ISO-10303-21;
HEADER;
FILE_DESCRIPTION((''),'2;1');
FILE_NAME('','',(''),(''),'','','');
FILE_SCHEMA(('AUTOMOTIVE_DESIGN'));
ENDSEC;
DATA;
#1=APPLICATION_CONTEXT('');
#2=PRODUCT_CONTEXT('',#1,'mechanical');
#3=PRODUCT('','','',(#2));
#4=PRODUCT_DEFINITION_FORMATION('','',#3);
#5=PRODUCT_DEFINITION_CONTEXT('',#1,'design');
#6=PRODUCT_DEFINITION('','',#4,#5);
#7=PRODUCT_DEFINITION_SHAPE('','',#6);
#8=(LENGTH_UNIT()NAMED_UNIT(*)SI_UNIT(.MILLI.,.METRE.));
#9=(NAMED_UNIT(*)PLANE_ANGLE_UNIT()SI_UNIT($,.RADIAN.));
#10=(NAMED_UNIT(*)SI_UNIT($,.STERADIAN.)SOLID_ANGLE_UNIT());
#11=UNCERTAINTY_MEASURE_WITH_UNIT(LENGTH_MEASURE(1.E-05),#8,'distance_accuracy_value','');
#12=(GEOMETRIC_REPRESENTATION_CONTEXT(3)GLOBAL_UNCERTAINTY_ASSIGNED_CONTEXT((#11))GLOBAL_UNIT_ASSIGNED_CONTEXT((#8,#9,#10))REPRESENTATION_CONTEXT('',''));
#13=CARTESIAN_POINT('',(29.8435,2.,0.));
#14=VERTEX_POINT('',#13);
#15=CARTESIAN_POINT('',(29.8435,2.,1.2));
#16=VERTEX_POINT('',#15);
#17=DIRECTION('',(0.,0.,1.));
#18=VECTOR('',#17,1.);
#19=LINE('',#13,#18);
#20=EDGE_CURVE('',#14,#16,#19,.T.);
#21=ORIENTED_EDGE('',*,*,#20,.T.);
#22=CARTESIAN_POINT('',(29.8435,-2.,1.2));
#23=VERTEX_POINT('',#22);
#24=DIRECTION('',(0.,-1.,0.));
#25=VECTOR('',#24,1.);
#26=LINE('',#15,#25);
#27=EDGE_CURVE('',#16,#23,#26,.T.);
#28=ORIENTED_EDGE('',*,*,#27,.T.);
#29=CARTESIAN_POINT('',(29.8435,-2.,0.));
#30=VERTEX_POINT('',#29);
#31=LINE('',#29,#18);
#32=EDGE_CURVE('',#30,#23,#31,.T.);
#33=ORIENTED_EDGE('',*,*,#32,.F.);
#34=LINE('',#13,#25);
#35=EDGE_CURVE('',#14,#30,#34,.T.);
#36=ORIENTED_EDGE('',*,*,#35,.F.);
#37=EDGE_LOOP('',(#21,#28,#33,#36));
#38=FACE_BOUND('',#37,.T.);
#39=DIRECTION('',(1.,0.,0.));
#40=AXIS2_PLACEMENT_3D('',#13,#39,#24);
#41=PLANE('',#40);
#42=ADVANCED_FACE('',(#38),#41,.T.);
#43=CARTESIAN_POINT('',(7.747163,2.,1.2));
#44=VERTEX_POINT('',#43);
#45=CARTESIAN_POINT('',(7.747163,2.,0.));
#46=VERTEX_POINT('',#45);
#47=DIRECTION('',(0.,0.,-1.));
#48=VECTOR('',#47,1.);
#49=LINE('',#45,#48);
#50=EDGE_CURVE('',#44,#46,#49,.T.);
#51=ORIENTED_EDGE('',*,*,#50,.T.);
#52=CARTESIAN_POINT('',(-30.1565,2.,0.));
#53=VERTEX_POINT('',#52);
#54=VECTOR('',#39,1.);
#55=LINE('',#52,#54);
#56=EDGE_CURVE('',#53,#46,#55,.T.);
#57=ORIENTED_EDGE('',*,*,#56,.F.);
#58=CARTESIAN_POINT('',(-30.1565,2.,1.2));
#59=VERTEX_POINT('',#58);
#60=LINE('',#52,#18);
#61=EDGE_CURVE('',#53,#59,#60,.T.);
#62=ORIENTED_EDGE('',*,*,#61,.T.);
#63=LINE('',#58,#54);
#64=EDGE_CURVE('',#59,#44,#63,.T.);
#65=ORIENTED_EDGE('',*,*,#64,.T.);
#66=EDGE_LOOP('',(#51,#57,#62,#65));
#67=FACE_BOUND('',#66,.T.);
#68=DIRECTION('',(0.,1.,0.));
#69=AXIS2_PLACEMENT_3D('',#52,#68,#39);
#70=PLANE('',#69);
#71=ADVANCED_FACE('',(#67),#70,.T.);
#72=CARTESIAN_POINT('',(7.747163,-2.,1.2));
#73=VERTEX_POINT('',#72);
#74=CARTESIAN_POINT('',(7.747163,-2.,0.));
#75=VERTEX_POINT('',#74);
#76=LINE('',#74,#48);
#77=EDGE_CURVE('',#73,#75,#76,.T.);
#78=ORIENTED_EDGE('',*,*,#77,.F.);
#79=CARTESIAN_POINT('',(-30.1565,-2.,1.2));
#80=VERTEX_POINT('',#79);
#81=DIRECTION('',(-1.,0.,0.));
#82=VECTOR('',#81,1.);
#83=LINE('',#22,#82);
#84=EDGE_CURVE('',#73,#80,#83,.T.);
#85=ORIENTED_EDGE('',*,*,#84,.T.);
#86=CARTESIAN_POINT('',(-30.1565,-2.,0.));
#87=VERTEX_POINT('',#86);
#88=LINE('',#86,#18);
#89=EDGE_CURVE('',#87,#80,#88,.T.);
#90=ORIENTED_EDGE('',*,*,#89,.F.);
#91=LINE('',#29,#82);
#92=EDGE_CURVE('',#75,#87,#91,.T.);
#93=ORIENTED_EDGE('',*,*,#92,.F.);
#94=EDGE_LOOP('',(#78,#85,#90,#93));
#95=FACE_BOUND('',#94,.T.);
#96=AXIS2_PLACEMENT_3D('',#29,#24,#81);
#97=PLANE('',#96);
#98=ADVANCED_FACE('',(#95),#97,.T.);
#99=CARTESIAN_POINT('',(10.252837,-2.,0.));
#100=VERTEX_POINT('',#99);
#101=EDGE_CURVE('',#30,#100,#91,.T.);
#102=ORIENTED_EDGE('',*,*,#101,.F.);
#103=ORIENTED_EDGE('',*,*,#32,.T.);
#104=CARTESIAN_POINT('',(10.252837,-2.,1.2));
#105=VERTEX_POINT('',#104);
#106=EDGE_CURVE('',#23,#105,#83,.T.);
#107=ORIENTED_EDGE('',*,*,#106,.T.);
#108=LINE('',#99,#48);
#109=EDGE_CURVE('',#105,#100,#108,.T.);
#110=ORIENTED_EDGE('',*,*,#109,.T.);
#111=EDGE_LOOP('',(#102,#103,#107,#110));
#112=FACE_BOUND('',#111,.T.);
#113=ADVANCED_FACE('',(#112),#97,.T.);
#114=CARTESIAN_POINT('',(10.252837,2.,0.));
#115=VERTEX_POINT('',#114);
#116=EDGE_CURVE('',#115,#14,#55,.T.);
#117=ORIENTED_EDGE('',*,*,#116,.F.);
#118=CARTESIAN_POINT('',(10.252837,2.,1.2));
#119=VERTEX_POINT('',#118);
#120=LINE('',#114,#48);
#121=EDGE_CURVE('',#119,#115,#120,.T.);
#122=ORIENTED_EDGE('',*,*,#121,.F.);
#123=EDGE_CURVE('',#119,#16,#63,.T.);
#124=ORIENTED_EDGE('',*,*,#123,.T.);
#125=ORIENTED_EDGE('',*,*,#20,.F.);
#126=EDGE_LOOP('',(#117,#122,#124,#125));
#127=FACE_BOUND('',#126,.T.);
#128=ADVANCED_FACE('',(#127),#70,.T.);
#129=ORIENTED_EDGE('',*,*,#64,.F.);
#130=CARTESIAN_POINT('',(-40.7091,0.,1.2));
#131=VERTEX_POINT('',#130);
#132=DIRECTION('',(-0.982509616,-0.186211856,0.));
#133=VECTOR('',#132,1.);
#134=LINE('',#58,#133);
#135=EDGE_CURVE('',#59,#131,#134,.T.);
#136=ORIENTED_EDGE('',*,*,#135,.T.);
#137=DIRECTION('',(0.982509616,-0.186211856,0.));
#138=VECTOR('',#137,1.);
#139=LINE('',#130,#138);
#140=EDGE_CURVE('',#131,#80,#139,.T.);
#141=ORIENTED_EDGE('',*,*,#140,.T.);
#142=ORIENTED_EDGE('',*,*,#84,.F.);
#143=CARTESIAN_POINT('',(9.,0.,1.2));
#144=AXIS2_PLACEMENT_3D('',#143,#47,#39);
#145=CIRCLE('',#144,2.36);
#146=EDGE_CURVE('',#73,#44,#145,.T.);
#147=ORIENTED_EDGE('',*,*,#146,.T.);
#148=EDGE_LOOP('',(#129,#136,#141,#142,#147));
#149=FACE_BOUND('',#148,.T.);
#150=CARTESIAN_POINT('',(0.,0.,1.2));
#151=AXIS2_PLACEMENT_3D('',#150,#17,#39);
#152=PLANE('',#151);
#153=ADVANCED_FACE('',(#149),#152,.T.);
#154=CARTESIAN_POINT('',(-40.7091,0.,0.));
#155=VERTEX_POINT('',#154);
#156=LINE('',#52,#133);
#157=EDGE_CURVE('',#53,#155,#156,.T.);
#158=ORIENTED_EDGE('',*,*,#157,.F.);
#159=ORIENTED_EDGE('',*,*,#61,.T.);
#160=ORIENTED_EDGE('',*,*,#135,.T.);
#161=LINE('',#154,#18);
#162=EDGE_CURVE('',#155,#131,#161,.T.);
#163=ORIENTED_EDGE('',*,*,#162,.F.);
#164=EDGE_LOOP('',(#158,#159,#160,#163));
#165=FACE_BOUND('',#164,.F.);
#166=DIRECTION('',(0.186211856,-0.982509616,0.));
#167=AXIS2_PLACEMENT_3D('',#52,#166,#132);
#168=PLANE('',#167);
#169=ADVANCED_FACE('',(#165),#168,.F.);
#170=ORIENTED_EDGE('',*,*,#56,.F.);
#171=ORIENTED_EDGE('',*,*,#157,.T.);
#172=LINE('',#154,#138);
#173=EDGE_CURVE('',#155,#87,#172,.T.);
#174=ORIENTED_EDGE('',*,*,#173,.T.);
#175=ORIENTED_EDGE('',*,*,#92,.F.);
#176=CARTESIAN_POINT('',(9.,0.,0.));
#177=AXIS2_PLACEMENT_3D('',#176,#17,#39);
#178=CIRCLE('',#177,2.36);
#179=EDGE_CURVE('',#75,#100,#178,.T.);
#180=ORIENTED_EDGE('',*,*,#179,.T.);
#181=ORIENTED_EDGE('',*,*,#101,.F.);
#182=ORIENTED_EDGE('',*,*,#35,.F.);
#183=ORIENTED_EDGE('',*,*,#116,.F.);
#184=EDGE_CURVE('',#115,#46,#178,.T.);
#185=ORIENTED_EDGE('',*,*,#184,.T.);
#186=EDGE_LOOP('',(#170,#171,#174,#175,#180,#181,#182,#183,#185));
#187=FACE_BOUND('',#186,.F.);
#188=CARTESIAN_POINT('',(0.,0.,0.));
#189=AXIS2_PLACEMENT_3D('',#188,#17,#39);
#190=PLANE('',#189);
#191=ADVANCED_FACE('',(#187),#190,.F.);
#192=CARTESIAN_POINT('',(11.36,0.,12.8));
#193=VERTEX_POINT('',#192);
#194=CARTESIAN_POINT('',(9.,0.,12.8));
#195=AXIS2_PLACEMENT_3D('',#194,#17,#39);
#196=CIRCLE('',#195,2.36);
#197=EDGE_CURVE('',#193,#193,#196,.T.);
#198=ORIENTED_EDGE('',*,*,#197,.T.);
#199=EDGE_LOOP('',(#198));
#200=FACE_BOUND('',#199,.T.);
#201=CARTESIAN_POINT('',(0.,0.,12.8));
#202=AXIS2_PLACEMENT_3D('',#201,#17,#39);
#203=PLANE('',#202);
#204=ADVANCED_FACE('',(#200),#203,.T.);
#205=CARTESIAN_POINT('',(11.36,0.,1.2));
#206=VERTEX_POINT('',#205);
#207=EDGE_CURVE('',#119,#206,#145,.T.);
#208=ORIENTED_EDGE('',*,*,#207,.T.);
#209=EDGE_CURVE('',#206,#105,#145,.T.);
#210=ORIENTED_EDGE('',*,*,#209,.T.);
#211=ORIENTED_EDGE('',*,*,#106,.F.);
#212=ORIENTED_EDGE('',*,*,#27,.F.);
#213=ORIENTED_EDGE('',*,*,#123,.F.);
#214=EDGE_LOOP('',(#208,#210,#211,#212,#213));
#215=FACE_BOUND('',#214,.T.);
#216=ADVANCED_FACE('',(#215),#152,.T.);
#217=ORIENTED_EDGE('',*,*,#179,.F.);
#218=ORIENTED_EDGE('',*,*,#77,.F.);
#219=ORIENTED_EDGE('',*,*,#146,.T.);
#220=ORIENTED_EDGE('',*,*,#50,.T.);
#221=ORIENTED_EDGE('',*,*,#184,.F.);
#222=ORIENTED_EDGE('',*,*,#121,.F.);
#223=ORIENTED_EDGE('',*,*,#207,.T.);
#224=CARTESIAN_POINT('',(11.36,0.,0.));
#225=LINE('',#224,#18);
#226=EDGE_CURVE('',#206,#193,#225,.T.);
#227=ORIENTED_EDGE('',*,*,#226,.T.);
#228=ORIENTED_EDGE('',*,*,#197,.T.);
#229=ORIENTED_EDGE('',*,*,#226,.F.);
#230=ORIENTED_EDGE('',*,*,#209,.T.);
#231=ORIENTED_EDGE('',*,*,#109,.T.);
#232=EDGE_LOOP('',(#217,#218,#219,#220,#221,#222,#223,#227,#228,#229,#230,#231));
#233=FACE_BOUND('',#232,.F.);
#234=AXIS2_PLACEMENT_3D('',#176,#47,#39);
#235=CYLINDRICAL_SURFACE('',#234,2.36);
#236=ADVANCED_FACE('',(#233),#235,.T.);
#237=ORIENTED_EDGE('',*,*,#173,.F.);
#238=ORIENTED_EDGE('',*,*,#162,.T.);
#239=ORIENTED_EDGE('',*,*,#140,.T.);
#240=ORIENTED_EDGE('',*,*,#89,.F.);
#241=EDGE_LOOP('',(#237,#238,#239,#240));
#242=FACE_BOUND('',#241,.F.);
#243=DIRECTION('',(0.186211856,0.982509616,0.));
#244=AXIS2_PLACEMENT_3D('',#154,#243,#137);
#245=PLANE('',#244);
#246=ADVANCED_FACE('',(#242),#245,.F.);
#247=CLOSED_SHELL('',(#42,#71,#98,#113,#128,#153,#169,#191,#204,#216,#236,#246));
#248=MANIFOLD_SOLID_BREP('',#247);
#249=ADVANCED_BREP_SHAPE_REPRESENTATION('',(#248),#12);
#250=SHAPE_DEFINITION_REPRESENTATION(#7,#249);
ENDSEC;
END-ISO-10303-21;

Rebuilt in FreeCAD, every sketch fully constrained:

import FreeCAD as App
import Part
import Sketcher


def add_polygon(sketch, points):
    """Adds a closed chain of lines whose ends are joined by coincident constraints."""
    first, n = sketch.GeometryCount, len(points)
    for a, b in zip(points, points[1:] + points[:1]):
        sketch.addGeometry(Part.LineSegment(App.Vector(*a, 0), App.Vector(*b, 0)), False)
    for i in range(n):
        sketch.addConstraint(Sketcher.Constraint("Coincident", first + i, 2, first + (i + 1) % n, 1))

doc = App.newDocument("Part")
params = doc.addObject("Spreadsheet::Sheet", "Params")
for row, (alias, value) in enumerate([
    ("sketch1_width", "60 mm"),
    ("sketch1_height", "4 mm"),
    ("pad1_length", "1.2 mm"),
    ("sketch2_diameter", "4.72 mm"),
    ("pad2_length", "12.8 mm"),
], start=1):
    params.set(f"A{row}", alias)
    params.set(f"B{row}", "=" + value)
    params.setAlias(f"B{row}", alias)

body = doc.addObject("PartDesign::Body", "Body")

sketch1 = body.newObject("Sketcher::SketchObject", "Sketch")
sketch1.AttachmentSupport = (doc.getObject("XY_Plane"), [""])
sketch1.MapMode = "FlatFace"
add_polygon(sketch1, [(-30.2, -2), (29.8, -2), (29.8, 2), (-30.2, 2), (-40.7, 0)])
sketch1.addConstraint(Sketcher.Constraint("Horizontal", 0))
sketch1.addConstraint(Sketcher.Constraint("Vertical", 1))
sketch1.addConstraint(Sketcher.Constraint("Horizontal", 2))
sketch1.addConstraint(Sketcher.Constraint("Symmetric", 2, 2, 4, 2, -1))
sketch1.addConstraint(Sketcher.Constraint("PointOnObject", 3, 2, -1))
sketch1.addConstraint(Sketcher.Constraint("DistanceX", 0, 1, 0, 2, 60.0))
sketch1.addConstraint(Sketcher.Constraint("DistanceY", 1, 1, 1, 2, 4.0))
sketch1.addConstraint(Sketcher.Constraint("DistanceX", 3, 2, -1, 1, 40.709))
sketch1.addConstraint(Sketcher.Constraint("Distance", 3, 10.7405))
sketch1.setExpression("Constraints[10]", "Params.sketch1_width")
sketch1.setExpression("Constraints[11]", "Params.sketch1_height")
pad1 = body.newObject("PartDesign::Pad", "Pad")
pad1.Profile = sketch1
pad1.setExpression("Length", "Params.pad1_length")

sketch2 = body.newObject("Sketcher::SketchObject", "Sketch001")
sketch2.AttachmentSupport = (doc.getObject("XY_Plane"), [""])
sketch2.MapMode = "FlatFace"
sketch2.addGeometry(Part.Circle(App.Vector(9, 0, 0), App.Vector(0, 0, 1), 2.4), False)
sketch2.addConstraint(Sketcher.Constraint("PointOnObject", 0, 3, -1))
sketch2.addConstraint(Sketcher.Constraint("Diameter", 0, 4.72))
sketch2.addConstraint(Sketcher.Constraint("DistanceX", -1, 1, 0, 3, 9.0))
sketch2.setExpression("Constraints[1]", "Params.sketch2_diameter")
pad2 = body.newObject("PartDesign::Pad", "Pad001")
pad2.Profile = sketch2
pad2.setExpression("Length", "Params.pad2_length")

doc.recompute()
